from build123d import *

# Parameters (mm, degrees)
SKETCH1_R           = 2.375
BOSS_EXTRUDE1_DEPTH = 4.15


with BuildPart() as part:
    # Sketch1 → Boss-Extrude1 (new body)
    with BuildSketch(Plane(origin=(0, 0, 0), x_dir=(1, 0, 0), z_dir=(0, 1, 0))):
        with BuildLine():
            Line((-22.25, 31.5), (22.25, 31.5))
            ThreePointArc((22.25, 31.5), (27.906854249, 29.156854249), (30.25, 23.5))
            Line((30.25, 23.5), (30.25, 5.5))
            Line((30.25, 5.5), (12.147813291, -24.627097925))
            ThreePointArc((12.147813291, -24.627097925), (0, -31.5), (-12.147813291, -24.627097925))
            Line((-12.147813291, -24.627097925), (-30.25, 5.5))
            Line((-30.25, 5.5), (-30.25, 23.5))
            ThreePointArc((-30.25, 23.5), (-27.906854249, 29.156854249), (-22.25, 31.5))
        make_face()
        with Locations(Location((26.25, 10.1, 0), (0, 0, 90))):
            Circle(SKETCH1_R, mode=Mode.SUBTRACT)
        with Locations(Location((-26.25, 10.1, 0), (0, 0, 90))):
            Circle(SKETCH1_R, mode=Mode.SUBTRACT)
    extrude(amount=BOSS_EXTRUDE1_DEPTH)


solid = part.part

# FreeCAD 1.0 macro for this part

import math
import FreeCAD as App
import Part
import Sketcher
from FreeCAD import Vector
Q = App.Units.Quantity

doc = App.newDocument("Part")
body = doc.addObject("PartDesign::Body", "Body")

# Sketch on XZ plane
sketch1 = body.newObject("Sketcher::SketchObject", "Sketch")
sketch1.AttachmentSupport = (doc.getObject("XZ_Plane"), [""])
sketch1.MapMode = "FlatFace"
sketch1.addGeometry(Part.LineSegment(Vector(22.25, -31.5, 0), Vector(-22.25, -31.5, 0)), False)
sketch1.addGeometry(Part.ArcOfCircle(Part.Circle(Vector(-22.25, -23.5, 0), Vector(0, 0, 1), 8), math.radians(-180), math.radians(-90)), False)
sketch1.addGeometry(Part.LineSegment(Vector(-30.25, -23.5, 0), Vector(-30.25, -5.5, 0)), False)
sketch1.addGeometry(Part.LineSegment(Vector(-30.25, -5.5, 0), Vector(-12.147813, 24.627098, 0)), False)
sketch1.addGeometry(Part.ArcOfCircle(Part.Circle(Vector(0, 17.327955, 0), Vector(0, 0, 1), 14.172045), math.radians(31), math.radians(149)), False)
sketch1.addGeometry(Part.LineSegment(Vector(12.147813, 24.627098, 0), Vector(30.25, -5.5, 0)), False)
sketch1.addGeometry(Part.LineSegment(Vector(30.25, -5.5, 0), Vector(30.25, -23.5, 0)), False)
sketch1.addGeometry(Part.ArcOfCircle(Part.Circle(Vector(22.25, -23.5, 0), Vector(0, 0, 1), 8), math.radians(-90), math.radians(0)), False)
sketch1.addGeometry(Part.Circle(Vector(26.25, -10.1, 0), Vector(0, 0, 1), 2.375), False)
sketch1.addGeometry(Part.Circle(Vector(-26.25, -10.1, 0), Vector(0, 0, 1), 2.375), False)
sketch1.addConstraint(Sketcher.Constraint("Tangent", 0, 2, 1, 2))
sketch1.addConstraint(Sketcher.Constraint("Tangent", 1, 1, 2, 1))
sketch1.addConstraint(Sketcher.Constraint("Coincident", 2, 2, 3, 1))
sketch1.addConstraint(Sketcher.Constraint("Tangent", 3, 2, 4, 2))
sketch1.addConstraint(Sketcher.Constraint("Tangent", 4, 1, 5, 1))
sketch1.addConstraint(Sketcher.Constraint("Coincident", 5, 2, 6, 1))
sketch1.addConstraint(Sketcher.Constraint("Tangent", 6, 2, 7, 2))
sketch1.addConstraint(Sketcher.Constraint("Tangent", 7, 1, 0, 1))
sketch1.addConstraint(Sketcher.Constraint("Horizontal", 0))
sketch1.addConstraint(Sketcher.Constraint("Vertical", 2))
sketch1.addConstraint(Sketcher.Constraint("Vertical", 6))
sketch1.addConstraint(Sketcher.Constraint("Equal", 1, 7))
sketch1.addConstraint(Sketcher.Constraint("Equal", 8, 9))
sketch1.addConstraint(Sketcher.Constraint("Symmetric", 8, 3, 9, 3, -2))
sketch1.addConstraint(Sketcher.Constraint("Symmetric", 3, 2, 4, 1, -2))
sketch1.addConstraint(Sketcher.Constraint("Horizontal", 2, 2, 5, 2))
sketch1.addConstraint(Sketcher.Constraint("Radius", 1, 8.0))
sketch1.addConstraint(Sketcher.Constraint("Diameter", 8, 4.75))
sketch1.addConstraint(Sketcher.Constraint("DistanceY", 2, 1, 2, 2, 18.0))
sketch1.addConstraint(Sketcher.Constraint("Angle", 3, Q("59 deg")))
sketch1.addConstraint(Sketcher.Constraint("DistanceX", 0, 2, 0, 1, 44.5))
sketch1.addConstraint(Sketcher.Constraint("DistanceX", 7, 3, 8, 3, 4.0))
sketch1.addConstraint(Sketcher.Constraint("DistanceY", 1, 3, -1, 1, 23.5))
sketch1.addConstraint(Sketcher.Constraint("DistanceY", 8, 3, -1, 1, 10.1))
sketch1.addConstraint(Sketcher.Constraint("Radius", 4, 14.172045))
pad1 = body.newObject("PartDesign::Pad", "Pad")
pad1.Profile = sketch1
pad1.Length = 4.15
pad1.Reversed = True

doc.recompute()
